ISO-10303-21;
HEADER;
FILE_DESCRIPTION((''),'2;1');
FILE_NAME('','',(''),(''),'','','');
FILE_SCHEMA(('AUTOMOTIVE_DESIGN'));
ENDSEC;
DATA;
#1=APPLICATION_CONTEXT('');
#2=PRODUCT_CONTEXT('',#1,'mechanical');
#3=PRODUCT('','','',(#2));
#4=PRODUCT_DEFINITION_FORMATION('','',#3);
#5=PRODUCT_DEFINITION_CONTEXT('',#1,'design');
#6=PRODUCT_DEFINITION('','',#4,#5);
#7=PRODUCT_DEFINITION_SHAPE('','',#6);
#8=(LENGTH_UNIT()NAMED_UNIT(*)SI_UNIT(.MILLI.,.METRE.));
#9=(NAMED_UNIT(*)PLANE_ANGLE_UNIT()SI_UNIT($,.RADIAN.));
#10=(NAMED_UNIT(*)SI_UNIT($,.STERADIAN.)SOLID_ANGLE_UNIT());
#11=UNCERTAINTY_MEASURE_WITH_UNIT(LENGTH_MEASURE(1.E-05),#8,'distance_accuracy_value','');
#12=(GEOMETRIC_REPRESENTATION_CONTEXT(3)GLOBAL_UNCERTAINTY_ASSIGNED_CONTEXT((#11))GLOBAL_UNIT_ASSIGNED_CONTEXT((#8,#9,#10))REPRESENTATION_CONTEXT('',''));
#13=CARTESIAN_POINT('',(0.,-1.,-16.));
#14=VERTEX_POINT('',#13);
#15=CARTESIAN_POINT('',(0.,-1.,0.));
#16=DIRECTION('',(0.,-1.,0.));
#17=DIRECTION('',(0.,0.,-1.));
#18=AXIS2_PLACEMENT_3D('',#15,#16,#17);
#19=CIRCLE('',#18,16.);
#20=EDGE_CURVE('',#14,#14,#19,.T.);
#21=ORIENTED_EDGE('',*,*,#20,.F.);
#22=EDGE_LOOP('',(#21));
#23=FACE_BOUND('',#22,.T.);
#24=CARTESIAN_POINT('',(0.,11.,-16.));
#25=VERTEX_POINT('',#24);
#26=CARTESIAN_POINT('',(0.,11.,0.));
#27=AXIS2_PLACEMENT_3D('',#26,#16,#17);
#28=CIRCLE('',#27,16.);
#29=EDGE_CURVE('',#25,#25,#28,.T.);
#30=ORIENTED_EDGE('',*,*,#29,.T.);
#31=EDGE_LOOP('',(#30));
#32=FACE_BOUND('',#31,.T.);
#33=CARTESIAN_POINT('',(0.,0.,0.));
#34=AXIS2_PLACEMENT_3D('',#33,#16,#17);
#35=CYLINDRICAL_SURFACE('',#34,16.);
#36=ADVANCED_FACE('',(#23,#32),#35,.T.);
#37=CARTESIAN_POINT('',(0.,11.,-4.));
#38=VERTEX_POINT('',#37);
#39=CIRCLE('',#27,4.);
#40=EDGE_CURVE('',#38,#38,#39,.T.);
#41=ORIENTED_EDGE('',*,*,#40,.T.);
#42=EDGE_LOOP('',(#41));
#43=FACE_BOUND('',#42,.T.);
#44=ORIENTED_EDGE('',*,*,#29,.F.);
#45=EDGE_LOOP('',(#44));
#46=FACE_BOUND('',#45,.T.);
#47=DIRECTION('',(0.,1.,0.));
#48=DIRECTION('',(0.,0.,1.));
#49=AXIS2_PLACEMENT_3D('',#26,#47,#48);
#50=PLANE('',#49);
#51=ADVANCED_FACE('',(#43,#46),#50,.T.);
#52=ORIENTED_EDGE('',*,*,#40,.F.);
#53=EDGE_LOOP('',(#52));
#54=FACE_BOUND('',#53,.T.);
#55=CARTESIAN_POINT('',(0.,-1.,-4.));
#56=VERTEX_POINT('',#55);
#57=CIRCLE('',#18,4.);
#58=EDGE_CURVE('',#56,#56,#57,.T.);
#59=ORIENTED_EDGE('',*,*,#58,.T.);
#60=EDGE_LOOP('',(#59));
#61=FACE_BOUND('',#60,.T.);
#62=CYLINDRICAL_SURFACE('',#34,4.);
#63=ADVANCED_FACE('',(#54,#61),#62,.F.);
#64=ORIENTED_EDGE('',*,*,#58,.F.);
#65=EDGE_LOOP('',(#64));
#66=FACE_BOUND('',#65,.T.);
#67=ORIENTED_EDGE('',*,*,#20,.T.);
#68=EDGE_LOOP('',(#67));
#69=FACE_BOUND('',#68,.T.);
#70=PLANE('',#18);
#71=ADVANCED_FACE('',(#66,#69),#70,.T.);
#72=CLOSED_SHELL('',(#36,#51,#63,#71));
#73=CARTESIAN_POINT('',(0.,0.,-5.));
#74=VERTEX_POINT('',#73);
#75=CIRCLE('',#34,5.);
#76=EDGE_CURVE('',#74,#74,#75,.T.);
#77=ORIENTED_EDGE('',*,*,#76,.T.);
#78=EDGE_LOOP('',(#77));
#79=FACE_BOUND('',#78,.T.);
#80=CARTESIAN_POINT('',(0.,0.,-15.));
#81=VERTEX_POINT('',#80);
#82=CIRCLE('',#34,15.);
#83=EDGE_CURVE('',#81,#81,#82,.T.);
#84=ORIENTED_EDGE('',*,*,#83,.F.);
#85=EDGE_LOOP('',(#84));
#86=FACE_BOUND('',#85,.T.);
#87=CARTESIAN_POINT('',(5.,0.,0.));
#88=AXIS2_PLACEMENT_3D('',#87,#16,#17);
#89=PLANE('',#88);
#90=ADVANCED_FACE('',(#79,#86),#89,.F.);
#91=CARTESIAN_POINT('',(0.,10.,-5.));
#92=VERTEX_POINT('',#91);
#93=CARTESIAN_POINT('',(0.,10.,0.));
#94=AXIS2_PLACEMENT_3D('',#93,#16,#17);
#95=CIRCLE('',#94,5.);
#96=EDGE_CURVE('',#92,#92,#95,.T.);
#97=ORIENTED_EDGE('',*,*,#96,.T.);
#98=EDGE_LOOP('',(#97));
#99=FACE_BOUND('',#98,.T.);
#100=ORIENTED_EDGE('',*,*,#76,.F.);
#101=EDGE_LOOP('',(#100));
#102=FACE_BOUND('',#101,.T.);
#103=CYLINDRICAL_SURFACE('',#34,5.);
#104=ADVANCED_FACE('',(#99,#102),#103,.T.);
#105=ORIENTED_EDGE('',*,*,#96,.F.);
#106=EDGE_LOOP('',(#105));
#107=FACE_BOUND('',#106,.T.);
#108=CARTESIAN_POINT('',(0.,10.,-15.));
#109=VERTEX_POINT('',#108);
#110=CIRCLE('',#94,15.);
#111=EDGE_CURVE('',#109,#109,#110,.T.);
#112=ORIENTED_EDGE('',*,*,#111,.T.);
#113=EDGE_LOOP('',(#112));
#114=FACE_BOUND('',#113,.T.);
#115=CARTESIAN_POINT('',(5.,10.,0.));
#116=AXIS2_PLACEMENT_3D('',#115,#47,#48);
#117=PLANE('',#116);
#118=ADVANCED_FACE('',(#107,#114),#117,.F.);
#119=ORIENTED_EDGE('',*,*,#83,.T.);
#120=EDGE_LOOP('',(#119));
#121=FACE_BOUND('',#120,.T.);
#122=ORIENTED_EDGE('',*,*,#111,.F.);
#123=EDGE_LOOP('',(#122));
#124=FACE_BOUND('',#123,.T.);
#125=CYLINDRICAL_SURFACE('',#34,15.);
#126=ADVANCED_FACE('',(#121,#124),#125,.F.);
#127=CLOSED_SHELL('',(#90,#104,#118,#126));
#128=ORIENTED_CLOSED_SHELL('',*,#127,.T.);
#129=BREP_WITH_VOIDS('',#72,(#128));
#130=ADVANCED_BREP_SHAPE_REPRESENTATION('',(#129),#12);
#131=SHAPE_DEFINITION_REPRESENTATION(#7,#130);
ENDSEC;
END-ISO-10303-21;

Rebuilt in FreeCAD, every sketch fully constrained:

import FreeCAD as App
import Part
import Sketcher


def add_polygon(sketch, points):
    """Adds a closed chain of lines whose ends are joined by coincident constraints."""
    first, n = sketch.GeometryCount, len(points)
    for a, b in zip(points, points[1:] + points[:1]):
        sketch.addGeometry(Part.LineSegment(App.Vector(*a, 0), App.Vector(*b, 0)), False)
    for i in range(n):
        sketch.addConstraint(Sketcher.Constraint("Coincident", first + i, 2, first + (i + 1) % n, 1))

doc = App.newDocument("Part")
body = doc.addObject("PartDesign::Body", "Body")

# Sketch on XY plane
sketch1 = body.newObject("Sketcher::SketchObject", "Sketch")
sketch1.AttachmentSupport = (doc.getObject("XY_Plane"), [""])
sketch1.MapMode = "FlatFace"
add_polygon(sketch1, [(4, 11), (4, -1), (16, -1), (16, 11)])  # lines 0-3
add_polygon(sketch1, [(15, 0), (5, 0), (5, 10), (15, 10)])  # lines 4-7
sketch1.addConstraint([
    Sketcher.Constraint("Vertical", 0),
    Sketcher.Constraint("Horizontal", 1),
    Sketcher.Constraint("Vertical", 2),
    Sketcher.Constraint("Horizontal", 3),
    Sketcher.Constraint("Horizontal", 4),
    Sketcher.Constraint("Vertical", 5),
    Sketcher.Constraint("Horizontal", 6),
    Sketcher.Constraint("Vertical", 7),
    Sketcher.Constraint("PointOnObject", 4, 2, -1),
    Sketcher.Constraint("Equal", 3, 0),
    Sketcher.Constraint("Equal", 6, 5),
    Sketcher.Constraint("DistanceX", 1, 1, 1, 2, 12.0),
    Sketcher.Constraint("DistanceX", 4, 2, 4, 1, 10.0),
    Sketcher.Constraint("DistanceX", -1, 1, 0, 2, 4.0),
    Sketcher.Constraint("DistanceY", 0, 2, -1, 1, 1.0),
    Sketcher.Constraint("DistanceX", -1, 1, 4, 2, 5.0),
])
revolution = body.newObject("PartDesign::Revolution", "Revolution")
revolution.Profile = sketch1
revolution.ReferenceAxis = (sketch1, ["V_Axis"])
revolution.Angle = 360

doc.recompute()
